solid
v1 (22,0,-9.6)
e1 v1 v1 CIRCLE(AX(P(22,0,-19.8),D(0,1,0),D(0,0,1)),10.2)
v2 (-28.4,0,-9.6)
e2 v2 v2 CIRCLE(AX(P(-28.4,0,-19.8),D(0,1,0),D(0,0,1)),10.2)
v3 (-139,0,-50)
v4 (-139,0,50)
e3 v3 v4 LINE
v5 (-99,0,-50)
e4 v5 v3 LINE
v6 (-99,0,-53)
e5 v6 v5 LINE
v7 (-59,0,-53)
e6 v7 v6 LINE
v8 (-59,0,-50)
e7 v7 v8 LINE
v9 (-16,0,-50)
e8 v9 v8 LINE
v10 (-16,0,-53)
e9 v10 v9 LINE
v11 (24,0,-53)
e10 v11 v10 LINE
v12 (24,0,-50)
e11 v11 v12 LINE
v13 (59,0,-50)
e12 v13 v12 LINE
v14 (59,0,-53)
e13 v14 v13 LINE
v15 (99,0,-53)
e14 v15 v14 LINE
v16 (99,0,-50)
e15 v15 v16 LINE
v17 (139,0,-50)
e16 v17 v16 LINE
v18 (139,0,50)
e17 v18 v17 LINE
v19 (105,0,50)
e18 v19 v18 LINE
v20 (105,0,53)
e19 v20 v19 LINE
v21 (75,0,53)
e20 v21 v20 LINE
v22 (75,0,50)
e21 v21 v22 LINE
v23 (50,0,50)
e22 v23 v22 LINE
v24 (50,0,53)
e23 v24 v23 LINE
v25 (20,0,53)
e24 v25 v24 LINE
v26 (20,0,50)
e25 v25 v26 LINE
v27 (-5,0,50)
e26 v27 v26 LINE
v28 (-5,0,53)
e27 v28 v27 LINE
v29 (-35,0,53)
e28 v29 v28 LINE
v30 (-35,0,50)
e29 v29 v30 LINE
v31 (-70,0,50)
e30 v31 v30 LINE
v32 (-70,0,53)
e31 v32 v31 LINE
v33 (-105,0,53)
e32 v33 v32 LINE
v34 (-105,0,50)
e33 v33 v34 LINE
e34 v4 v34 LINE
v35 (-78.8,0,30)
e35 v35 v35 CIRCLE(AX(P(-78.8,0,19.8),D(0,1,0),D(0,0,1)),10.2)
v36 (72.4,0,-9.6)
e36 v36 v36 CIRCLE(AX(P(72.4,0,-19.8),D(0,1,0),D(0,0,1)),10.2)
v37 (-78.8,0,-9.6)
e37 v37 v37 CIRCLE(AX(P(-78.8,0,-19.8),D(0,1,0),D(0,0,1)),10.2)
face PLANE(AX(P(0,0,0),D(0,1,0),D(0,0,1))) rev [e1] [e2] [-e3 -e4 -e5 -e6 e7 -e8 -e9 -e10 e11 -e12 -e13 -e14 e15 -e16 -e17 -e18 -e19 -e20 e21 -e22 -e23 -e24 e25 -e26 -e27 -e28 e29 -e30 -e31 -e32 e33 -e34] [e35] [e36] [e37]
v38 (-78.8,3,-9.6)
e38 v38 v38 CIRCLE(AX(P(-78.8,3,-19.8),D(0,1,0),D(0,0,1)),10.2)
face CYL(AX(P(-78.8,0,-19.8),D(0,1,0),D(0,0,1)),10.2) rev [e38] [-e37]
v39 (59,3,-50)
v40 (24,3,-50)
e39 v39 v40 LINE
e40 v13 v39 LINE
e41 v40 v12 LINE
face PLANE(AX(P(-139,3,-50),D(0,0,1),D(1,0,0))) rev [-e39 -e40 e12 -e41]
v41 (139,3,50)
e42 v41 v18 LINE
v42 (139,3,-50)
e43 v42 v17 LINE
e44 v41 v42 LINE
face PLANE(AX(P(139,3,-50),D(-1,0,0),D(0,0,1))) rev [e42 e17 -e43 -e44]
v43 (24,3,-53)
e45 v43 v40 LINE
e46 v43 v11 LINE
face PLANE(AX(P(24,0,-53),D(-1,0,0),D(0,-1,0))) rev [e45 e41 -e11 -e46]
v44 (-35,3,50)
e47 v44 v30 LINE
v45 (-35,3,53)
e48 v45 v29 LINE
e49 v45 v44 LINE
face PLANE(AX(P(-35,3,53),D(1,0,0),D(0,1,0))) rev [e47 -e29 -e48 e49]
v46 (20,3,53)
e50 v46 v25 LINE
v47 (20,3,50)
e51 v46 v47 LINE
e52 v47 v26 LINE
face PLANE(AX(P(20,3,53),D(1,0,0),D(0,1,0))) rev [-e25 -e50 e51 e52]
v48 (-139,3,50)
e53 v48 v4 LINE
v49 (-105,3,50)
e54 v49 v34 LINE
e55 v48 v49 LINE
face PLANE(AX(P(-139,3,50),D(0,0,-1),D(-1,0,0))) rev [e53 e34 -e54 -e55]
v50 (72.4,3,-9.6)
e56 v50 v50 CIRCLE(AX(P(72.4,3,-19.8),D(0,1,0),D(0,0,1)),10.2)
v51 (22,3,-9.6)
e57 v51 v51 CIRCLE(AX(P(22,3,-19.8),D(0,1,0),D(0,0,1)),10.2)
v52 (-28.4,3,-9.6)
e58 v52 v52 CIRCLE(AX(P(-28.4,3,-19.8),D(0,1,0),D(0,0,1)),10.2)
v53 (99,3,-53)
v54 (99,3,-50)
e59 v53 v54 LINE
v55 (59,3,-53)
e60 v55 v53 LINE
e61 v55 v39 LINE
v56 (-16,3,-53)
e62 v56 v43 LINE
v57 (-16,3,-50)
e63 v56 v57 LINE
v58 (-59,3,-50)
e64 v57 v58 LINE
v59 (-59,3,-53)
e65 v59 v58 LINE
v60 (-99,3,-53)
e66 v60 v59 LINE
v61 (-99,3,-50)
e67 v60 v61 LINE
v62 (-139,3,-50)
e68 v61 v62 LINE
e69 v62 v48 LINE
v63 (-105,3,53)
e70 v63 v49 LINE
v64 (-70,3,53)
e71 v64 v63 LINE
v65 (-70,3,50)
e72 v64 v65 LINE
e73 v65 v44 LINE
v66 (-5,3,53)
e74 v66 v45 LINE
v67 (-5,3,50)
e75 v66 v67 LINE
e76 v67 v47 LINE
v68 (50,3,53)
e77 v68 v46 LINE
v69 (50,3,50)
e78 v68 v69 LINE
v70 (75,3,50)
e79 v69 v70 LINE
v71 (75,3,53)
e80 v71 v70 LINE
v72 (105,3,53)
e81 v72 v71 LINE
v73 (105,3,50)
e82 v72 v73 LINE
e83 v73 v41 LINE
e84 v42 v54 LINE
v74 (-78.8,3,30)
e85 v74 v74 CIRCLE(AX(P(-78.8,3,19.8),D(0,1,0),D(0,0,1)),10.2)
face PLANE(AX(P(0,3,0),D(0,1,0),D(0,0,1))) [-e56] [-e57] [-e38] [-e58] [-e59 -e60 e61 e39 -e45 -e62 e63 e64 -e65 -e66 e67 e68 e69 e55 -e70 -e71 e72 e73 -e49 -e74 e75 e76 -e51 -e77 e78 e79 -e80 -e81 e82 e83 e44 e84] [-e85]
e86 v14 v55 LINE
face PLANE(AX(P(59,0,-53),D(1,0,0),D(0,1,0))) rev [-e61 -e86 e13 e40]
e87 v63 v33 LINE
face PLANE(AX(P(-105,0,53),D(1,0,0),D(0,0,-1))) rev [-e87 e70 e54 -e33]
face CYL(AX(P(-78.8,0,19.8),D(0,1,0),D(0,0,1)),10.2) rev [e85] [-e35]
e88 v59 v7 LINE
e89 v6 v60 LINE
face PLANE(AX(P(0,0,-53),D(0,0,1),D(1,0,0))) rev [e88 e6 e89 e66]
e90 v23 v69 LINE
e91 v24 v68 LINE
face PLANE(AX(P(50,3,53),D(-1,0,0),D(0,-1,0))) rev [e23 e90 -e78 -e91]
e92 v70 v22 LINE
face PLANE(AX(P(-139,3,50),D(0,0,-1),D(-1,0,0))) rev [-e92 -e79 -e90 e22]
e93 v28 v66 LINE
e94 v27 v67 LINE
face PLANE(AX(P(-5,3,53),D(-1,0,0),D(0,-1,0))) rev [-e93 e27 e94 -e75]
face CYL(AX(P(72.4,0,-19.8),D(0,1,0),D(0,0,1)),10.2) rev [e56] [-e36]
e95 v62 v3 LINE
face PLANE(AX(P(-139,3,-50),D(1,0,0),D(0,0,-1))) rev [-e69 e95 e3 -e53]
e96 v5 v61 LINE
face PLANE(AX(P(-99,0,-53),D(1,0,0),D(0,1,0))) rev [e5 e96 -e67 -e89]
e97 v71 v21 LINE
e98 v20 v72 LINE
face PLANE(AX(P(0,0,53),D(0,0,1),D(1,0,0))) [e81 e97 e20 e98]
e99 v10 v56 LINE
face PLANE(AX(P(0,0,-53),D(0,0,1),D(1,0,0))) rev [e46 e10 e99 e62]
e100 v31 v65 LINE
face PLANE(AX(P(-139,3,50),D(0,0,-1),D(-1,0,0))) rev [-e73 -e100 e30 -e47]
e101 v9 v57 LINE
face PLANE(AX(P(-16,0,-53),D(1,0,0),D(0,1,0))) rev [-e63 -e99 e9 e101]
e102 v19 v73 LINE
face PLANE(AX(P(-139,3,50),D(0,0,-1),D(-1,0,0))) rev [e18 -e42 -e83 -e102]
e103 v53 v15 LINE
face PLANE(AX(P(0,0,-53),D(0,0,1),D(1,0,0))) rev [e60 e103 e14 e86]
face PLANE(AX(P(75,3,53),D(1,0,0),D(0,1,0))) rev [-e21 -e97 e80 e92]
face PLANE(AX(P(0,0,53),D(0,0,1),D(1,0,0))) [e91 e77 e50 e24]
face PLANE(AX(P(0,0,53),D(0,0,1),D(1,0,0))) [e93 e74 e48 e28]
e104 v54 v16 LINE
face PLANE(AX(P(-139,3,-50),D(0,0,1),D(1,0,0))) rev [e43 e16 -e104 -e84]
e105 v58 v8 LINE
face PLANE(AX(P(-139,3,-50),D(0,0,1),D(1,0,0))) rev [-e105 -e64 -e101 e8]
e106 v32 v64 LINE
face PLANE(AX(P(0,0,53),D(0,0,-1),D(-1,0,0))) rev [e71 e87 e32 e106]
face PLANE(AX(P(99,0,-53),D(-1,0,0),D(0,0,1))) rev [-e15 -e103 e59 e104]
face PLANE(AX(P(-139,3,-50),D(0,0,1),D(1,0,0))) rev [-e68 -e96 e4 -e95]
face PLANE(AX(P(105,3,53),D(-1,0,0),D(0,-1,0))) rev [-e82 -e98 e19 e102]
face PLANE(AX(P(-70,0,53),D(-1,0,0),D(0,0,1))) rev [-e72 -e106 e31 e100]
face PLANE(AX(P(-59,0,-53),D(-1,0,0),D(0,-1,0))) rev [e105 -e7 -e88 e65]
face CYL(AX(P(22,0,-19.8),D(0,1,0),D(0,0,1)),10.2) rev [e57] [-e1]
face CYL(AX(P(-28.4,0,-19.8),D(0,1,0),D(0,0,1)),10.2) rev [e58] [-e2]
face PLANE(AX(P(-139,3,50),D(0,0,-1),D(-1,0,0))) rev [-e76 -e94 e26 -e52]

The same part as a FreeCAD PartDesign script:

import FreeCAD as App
import Part
import Sketcher
from FreeCAD import Vector

doc = App.newDocument("Part")
body = doc.addObject("PartDesign::Body", "Body")

sketch1 = doc.addObject("Sketcher::SketchObject", "Sketch")
body.addObject(sketch1)
sketch1.AttachmentSupport = (doc.XZ_Plane, [""])
sketch1.MapMode = "FlatFace"
sketch1.addGeometry(Part.LineSegment(Vector(-139, -50, 0), Vector(-139, 50, 0)), False)
sketch1.addGeometry(Part.LineSegment(Vector(-139, 50, 0), Vector(139, 50, 0)), False)
sketch1.addGeometry(Part.LineSegment(Vector(139, 50, 0), Vector(139, -50, 0)), False)
sketch1.addGeometry(Part.LineSegment(Vector(139, -50, 0), Vector(-139, -50, 0)), False)
sketch1.addConstraint(Sketcher.Constraint("Coincident", 0, 2, 1, 1))
sketch1.addConstraint(Sketcher.Constraint("Coincident", 1, 2, 2, 1))
sketch1.addConstraint(Sketcher.Constraint("Coincident", 2, 2, 3, 1))
sketch1.addConstraint(Sketcher.Constraint("Coincident", 3, 2, 0, 1))
sketch1.addConstraint(Sketcher.Constraint("Vertical", 0))
sketch1.addConstraint(Sketcher.Constraint("Horizontal", 1))
sketch1.addConstraint(Sketcher.Constraint("Vertical", 2))
sketch1.addConstraint(Sketcher.Constraint("Horizontal", 3))
sketch1.addConstraint(Sketcher.Constraint("Symmetric", 0, 2, 2, 2, -1, 1))
sketch1.addConstraint(Sketcher.Constraint("DistanceX", 1, 1, 1, 2, 278.0))
sketch1.addConstraint(Sketcher.Constraint("DistanceY", 0, 1, 0, 2, 100.0))
pad1 = doc.addObject("PartDesign::Pad", "Pad")
body.addObject(pad1)
pad1.Profile = sketch1
pad1.Length = 3
pad1.Reversed = True

sketch2 = doc.addObject("Sketcher::SketchObject", "Sketch001")
body.addObject(sketch2)
sketch2.AttachmentSupport = (doc.XY_Plane, [""])
sketch2.MapMode = "FlatFace"
sketch2.AttachmentOffset = App.Placement(Vector(0, 0, -50), App.Rotation())
sketch2.addGeometry(Part.LineSegment(Vector(99, 3, 0), Vector(99, 0, 0)), False)
sketch2.addGeometry(Part.LineSegment(Vector(99, 0, 0), Vector(59, 0, 0)), False)
sketch2.addGeometry(Part.LineSegment(Vector(59, 0, 0), Vector(59, 3, 0)), False)
sketch2.addGeometry(Part.LineSegment(Vector(59, 3, 0), Vector(99, 3, 0)), False)
sketch2.addGeometry(Part.LineSegment(Vector(24, 3, 0), Vector(24, 0, 0)), False)
sketch2.addGeometry(Part.LineSegment(Vector(24, 0, 0), Vector(-16, 0, 0)), False)
sketch2.addGeometry(Part.LineSegment(Vector(-16, 0, 0), Vector(-16, 3, 0)), False)
sketch2.addGeometry(Part.LineSegment(Vector(-16, 3, 0), Vector(24, 3, 0)), False)
sketch2.addGeometry(Part.LineSegment(Vector(-59, 3, 0), Vector(-59, 0, 0)), False)
sketch2.addGeometry(Part.LineSegment(Vector(-59, 0, 0), Vector(-99, 0, 0)), False)
sketch2.addGeometry(Part.LineSegment(Vector(-99, 0, 0), Vector(-99, 3, 0)), False)
sketch2.addGeometry(Part.LineSegment(Vector(-99, 3, 0), Vector(-59, 3, 0)), False)
sketch2.addConstraint(Sketcher.Constraint("Coincident", 0, 2, 1, 1))
sketch2.addConstraint(Sketcher.Constraint("Coincident", 1, 2, 2, 1))
sketch2.addConstraint(Sketcher.Constraint("Coincident", 2, 2, 3, 1))
sketch2.addConstraint(Sketcher.Constraint("Coincident", 3, 2, 0, 1))
sketch2.addConstraint(Sketcher.Constraint("Coincident", 4, 2, 5, 1))
sketch2.addConstraint(Sketcher.Constraint("Coincident", 5, 2, 6, 1))
sketch2.addConstraint(Sketcher.Constraint("Coincident", 6, 2, 7, 1))
sketch2.addConstraint(Sketcher.Constraint("Coincident", 7, 2, 4, 1))
sketch2.addConstraint(Sketcher.Constraint("Coincident", 8, 2, 9, 1))
sketch2.addConstraint(Sketcher.Constraint("Coincident", 9, 2, 10, 1))
sketch2.addConstraint(Sketcher.Constraint("Coincident", 10, 2, 11, 1))
sketch2.addConstraint(Sketcher.Constraint("Coincident", 11, 2, 8, 1))
sketch2.addConstraint(Sketcher.Constraint("Vertical", 0))
sketch2.addConstraint(Sketcher.Constraint("Horizontal", 1))
sketch2.addConstraint(Sketcher.Constraint("Vertical", 2))
sketch2.addConstraint(Sketcher.Constraint("Horizontal", 3))
sketch2.addConstraint(Sketcher.Constraint("Vertical", 4))
sketch2.addConstraint(Sketcher.Constraint("Horizontal", 5))
sketch2.addConstraint(Sketcher.Constraint("Vertical", 6))
sketch2.addConstraint(Sketcher.Constraint("Horizontal", 7))
sketch2.addConstraint(Sketcher.Constraint("Vertical", 8))
sketch2.addConstraint(Sketcher.Constraint("Horizontal", 9))
sketch2.addConstraint(Sketcher.Constraint("Vertical", 10))
sketch2.addConstraint(Sketcher.Constraint("Horizontal", 11))
sketch2.addConstraint(Sketcher.Constraint("Symmetric", 1, 2, 8, 2, -1, 1))
sketch2.addConstraint(Sketcher.Constraint("Symmetric", 0, 2, 9, 2, -2))
sketch2.addConstraint(Sketcher.Constraint("PointOnObject", 4, 2, -1))
sketch2.addConstraint(Sketcher.Constraint("Horizontal", 3, 2, 6, 2))
sketch2.addConstraint(Sketcher.Constraint("Horizontal", 7, 2, 10, 2))
sketch2.addConstraint(Sketcher.Constraint("Equal", 3, 5))
sketch2.addConstraint(Sketcher.Constraint("DistanceX", 1, 2, 1, 1, 40.0))
sketch2.addConstraint(Sketcher.Constraint("DistanceY", 0, 2, 0, 1, 3.0))
sketch2.addConstraint(Sketcher.Constraint("DistanceX", -1, 1, 0, 2, 99.0))
sketch2.addConstraint(Sketcher.Constraint("DistanceX", -1, 1, 4, 2, 24.0))
pad2 = doc.addObject("PartDesign::Pad", "Pad001")
body.addObject(pad2)
pad2.Profile = sketch2
pad2.Length = 3
pad2.Reversed = True

sketch3 = doc.addObject("Sketcher::SketchObject", "Sketch002")
body.addObject(sketch3)
sketch3.AttachmentSupport = (doc.XZ_Plane, [""])
sketch3.MapMode = "FlatFace"
sketch3.AttachmentOffset = App.Placement(Vector(0, 0, -3), App.Rotation())
sketch3.addGeometry(Part.Circle(Vector(72, -20, 0), Vector(0, 0, 1), 10), False)
sketch3.addGeometry(Part.Circle(Vector(-79, 20, 0), Vector(0, 0, 1), 10), False)
sketch3.addGeometry(Part.Circle(Vector(22, -20, 0), Vector(0, 0, 1), 10), False)
sketch3.addGeometry(Part.Circle(Vector(-28, -20, 0), Vector(0, 0, 1), 10), False)
sketch3.addGeometry(Part.Circle(Vector(-79, -20, 0), Vector(0, 0, 1), 10), False)
sketch3.addConstraint(Sketcher.Constraint("Equal", 0, 1))
sketch3.addConstraint(Sketcher.Constraint("Equal", 1, 2))
sketch3.addConstraint(Sketcher.Constraint("Equal", 2, 3))
sketch3.addConstraint(Sketcher.Constraint("Equal", 3, 4))
sketch3.addConstraint(Sketcher.Constraint("Symmetric", 1, 3, 4, 3, -1))
sketch3.addConstraint(Sketcher.Constraint("Horizontal", 0, 3, 2, 3))
sketch3.addConstraint(Sketcher.Constraint("Horizontal", 2, 3, 3, 3))
sketch3.addConstraint(Sketcher.Constraint("Horizontal", 3, 3, 4, 3))
sketch3.addConstraint(Sketcher.Constraint("Diameter", 0, 20.4))
sketch3.addConstraint(Sketcher.Constraint("DistanceX", -1, 1, 2, 3, 22.0))
sketch3.addConstraint(Sketcher.Constraint("DistanceX", -1, 1, 0, 3, 72.4))
sketch3.addConstraint(Sketcher.Constraint("DistanceY", 0, 3, -1, 1, 19.8))
sketch3.addConstraint(Sketcher.Constraint("DistanceX", 1, 3, -1, 1, 78.8))
sketch3.addConstraint(Sketcher.Constraint("DistanceX", 3, 3, -1, 1, 28.4))
pocket1 = doc.addObject("PartDesign::Pocket", "Pocket")
body.addObject(pocket1)
pocket1.Profile = sketch3
pocket1.Length = 3
pocket1.Reversed = True

sketch4 = doc.addObject("Sketcher::SketchObject", "Sketch003")
body.addObject(sketch4)
sketch4.AttachmentSupport = (doc.XY_Plane, [""])
sketch4.MapMode = "FlatFace"
sketch4.AttachmentOffset = App.Placement(Vector(0, 0, 50), App.Rotation())
sketch4.addGeometry(Part.LineSegment(Vector(-105, 3, 0), Vector(-105, 0, 0)), False)
sketch4.addGeometry(Part.LineSegment(Vector(-105, 0, 0), Vector(-70, 0, 0)), False)
sketch4.addGeometry(Part.LineSegment(Vector(-70, 0, 0), Vector(-70, 3, 0)), False)
sketch4.addGeometry(Part.LineSegment(Vector(-70, 3, 0), Vector(-105, 3, 0)), False)
sketch4.addGeometry(Part.LineSegment(Vector(-35, 3, 0), Vector(-35, 0, 0)), False)
sketch4.addGeometry(Part.LineSegment(Vector(-35, 0, 0), Vector(-5, 0, 0)), False)
sketch4.addGeometry(Part.LineSegment(Vector(-5, 0, 0), Vector(-5, 3, 0)), False)
sketch4.addGeometry(Part.LineSegment(Vector(-5, 3, 0), Vector(-35, 3, 0)), False)
sketch4.addGeometry(Part.LineSegment(Vector(20, 3, 0), Vector(20, 0, 0)), False)
sketch4.addGeometry(Part.LineSegment(Vector(20, 0, 0), Vector(50, 0, 0)), False)
sketch4.addGeometry(Part.LineSegment(Vector(50, 0, 0), Vector(50, 3, 0)), False)
sketch4.addGeometry(Part.LineSegment(Vector(50, 3, 0), Vector(20, 3, 0)), False)
sketch4.addGeometry(Part.LineSegment(Vector(75, 3, 0), Vector(75, 0, 0)), False)
sketch4.addGeometry(Part.LineSegment(Vector(75, 0, 0), Vector(105, 0, 0)), False)
sketch4.addGeometry(Part.LineSegment(Vector(105, 0, 0), Vector(105, 3, 0)), False)
sketch4.addGeometry(Part.LineSegment(Vector(105, 3, 0), Vector(75, 3, 0)), False)
sketch4.addConstraint(Sketcher.Constraint("Coincident", 0, 2, 1, 1))
sketch4.addConstraint(Sketcher.Constraint("Coincident", 1, 2, 2, 1))
sketch4.addConstraint(Sketcher.Constraint("Coincident", 2, 2, 3, 1))
sketch4.addConstraint(Sketcher.Constraint("Coincident", 3, 2, 0, 1))
sketch4.addConstraint(Sketcher.Constraint("Coincident", 4, 2, 5, 1))
sketch4.addConstraint(Sketcher.Constraint("Coincident", 5, 2, 6, 1))
sketch4.addConstraint(Sketcher.Constraint("Coincident", 6, 2, 7, 1))
sketch4.addConstraint(Sketcher.Constraint("Coincident", 7, 2, 4, 1))
sketch4.addConstraint(Sketcher.Constraint("Coincident", 8, 2, 9, 1))
sketch4.addConstraint(Sketcher.Constraint("Coincident", 9, 2, 10, 1))
sketch4.addConstraint(Sketcher.Constraint("Coincident", 10, 2, 11, 1))
sketch4.addConstraint(Sketcher.Constraint("Coincident", 11, 2, 8, 1))
sketch4.addConstraint(Sketcher.Constraint("Coincident", 12, 2, 13, 1))
sketch4.addConstraint(Sketcher.Constraint("Coincident", 13, 2, 14, 1))
sketch4.addConstraint(Sketcher.Constraint("Coincident", 14, 2, 15, 1))
sketch4.addConstraint(Sketcher.Constraint("Coincident", 15, 2, 12, 1))
sketch4.addConstraint(Sketcher.Constraint("Vertical", 0))
sketch4.addConstraint(Sketcher.Constraint("Horizontal", 1))
sketch4.addConstraint(Sketcher.Constraint("Vertical", 2))
sketch4.addConstraint(Sketcher.Constraint("Horizontal", 3))
sketch4.addConstraint(Sketcher.Constraint("Vertical", 4))
sketch4.addConstraint(Sketcher.Constraint("Horizontal", 5))
sketch4.addConstraint(Sketcher.Constraint("Vertical", 6))
sketch4.addConstraint(Sketcher.Constraint("Horizontal", 7))
sketch4.addConstraint(Sketcher.Constraint("Vertical", 8))
sketch4.addConstraint(Sketcher.Constraint("Horizontal", 9))
sketch4.addConstraint(Sketcher.Constraint("Vertical", 10))
sketch4.addConstraint(Sketcher.Constraint("Horizontal", 11))
sketch4.addConstraint(Sketcher.Constraint("Vertical", 12))
sketch4.addConstraint(Sketcher.Constraint("Horizontal", 13))
sketch4.addConstraint(Sketcher.Constraint("Vertical", 14))
sketch4.addConstraint(Sketcher.Constraint("Horizontal", 15))
sketch4.addConstraint(Sketcher.Constraint("Symmetric", 0, 2, 13, 2, -1, 1))
sketch4.addConstraint(Sketcher.Constraint("PointOnObject", 0, 2, -1))
sketch4.addConstraint(Sketcher.Constraint("PointOnObject", 4, 2, -1))
sketch4.addConstraint(Sketcher.Constraint("PointOnObject", 8, 2, -1))
sketch4.addConstraint(Sketcher.Constraint("Horizontal", 3, 2, 6, 2))
sketch4.addConstraint(Sketcher.Constraint("Horizontal", 7, 2, 10, 2))
sketch4.addConstraint(Sketcher.Constraint("Horizontal", 11, 2, 14, 2))
sketch4.addConstraint(Sketcher.Constraint("Equal", 7, 9))
sketch4.addConstraint(Sketcher.Constraint("Equal", 11, 13))
sketch4.addConstraint(Sketcher.Constraint("DistanceX", 1, 1, 1, 2, 35.0))
sketch4.addConstraint(Sketcher.Constraint("DistanceX", 5, 1, 5, 2, 30.0))
sketch4.addConstraint(Sketcher.Constraint("DistanceY", 0, 2, 0, 1, 3.0))
sketch4.addConstraint(Sketcher.Constraint("DistanceX", 0, 2, -1, 1, 105.0))
sketch4.addConstraint(Sketcher.Constraint("DistanceX", 4, 2, -1, 1, 35.0))
sketch4.addConstraint(Sketcher.Constraint("DistanceX", -1, 1, 8, 2, 20.0))
pad3 = doc.addObject("PartDesign::Pad", "Pad002")
body.addObject(pad3)
pad3.Profile = sketch4
pad3.Length = 3

doc.recompute()
